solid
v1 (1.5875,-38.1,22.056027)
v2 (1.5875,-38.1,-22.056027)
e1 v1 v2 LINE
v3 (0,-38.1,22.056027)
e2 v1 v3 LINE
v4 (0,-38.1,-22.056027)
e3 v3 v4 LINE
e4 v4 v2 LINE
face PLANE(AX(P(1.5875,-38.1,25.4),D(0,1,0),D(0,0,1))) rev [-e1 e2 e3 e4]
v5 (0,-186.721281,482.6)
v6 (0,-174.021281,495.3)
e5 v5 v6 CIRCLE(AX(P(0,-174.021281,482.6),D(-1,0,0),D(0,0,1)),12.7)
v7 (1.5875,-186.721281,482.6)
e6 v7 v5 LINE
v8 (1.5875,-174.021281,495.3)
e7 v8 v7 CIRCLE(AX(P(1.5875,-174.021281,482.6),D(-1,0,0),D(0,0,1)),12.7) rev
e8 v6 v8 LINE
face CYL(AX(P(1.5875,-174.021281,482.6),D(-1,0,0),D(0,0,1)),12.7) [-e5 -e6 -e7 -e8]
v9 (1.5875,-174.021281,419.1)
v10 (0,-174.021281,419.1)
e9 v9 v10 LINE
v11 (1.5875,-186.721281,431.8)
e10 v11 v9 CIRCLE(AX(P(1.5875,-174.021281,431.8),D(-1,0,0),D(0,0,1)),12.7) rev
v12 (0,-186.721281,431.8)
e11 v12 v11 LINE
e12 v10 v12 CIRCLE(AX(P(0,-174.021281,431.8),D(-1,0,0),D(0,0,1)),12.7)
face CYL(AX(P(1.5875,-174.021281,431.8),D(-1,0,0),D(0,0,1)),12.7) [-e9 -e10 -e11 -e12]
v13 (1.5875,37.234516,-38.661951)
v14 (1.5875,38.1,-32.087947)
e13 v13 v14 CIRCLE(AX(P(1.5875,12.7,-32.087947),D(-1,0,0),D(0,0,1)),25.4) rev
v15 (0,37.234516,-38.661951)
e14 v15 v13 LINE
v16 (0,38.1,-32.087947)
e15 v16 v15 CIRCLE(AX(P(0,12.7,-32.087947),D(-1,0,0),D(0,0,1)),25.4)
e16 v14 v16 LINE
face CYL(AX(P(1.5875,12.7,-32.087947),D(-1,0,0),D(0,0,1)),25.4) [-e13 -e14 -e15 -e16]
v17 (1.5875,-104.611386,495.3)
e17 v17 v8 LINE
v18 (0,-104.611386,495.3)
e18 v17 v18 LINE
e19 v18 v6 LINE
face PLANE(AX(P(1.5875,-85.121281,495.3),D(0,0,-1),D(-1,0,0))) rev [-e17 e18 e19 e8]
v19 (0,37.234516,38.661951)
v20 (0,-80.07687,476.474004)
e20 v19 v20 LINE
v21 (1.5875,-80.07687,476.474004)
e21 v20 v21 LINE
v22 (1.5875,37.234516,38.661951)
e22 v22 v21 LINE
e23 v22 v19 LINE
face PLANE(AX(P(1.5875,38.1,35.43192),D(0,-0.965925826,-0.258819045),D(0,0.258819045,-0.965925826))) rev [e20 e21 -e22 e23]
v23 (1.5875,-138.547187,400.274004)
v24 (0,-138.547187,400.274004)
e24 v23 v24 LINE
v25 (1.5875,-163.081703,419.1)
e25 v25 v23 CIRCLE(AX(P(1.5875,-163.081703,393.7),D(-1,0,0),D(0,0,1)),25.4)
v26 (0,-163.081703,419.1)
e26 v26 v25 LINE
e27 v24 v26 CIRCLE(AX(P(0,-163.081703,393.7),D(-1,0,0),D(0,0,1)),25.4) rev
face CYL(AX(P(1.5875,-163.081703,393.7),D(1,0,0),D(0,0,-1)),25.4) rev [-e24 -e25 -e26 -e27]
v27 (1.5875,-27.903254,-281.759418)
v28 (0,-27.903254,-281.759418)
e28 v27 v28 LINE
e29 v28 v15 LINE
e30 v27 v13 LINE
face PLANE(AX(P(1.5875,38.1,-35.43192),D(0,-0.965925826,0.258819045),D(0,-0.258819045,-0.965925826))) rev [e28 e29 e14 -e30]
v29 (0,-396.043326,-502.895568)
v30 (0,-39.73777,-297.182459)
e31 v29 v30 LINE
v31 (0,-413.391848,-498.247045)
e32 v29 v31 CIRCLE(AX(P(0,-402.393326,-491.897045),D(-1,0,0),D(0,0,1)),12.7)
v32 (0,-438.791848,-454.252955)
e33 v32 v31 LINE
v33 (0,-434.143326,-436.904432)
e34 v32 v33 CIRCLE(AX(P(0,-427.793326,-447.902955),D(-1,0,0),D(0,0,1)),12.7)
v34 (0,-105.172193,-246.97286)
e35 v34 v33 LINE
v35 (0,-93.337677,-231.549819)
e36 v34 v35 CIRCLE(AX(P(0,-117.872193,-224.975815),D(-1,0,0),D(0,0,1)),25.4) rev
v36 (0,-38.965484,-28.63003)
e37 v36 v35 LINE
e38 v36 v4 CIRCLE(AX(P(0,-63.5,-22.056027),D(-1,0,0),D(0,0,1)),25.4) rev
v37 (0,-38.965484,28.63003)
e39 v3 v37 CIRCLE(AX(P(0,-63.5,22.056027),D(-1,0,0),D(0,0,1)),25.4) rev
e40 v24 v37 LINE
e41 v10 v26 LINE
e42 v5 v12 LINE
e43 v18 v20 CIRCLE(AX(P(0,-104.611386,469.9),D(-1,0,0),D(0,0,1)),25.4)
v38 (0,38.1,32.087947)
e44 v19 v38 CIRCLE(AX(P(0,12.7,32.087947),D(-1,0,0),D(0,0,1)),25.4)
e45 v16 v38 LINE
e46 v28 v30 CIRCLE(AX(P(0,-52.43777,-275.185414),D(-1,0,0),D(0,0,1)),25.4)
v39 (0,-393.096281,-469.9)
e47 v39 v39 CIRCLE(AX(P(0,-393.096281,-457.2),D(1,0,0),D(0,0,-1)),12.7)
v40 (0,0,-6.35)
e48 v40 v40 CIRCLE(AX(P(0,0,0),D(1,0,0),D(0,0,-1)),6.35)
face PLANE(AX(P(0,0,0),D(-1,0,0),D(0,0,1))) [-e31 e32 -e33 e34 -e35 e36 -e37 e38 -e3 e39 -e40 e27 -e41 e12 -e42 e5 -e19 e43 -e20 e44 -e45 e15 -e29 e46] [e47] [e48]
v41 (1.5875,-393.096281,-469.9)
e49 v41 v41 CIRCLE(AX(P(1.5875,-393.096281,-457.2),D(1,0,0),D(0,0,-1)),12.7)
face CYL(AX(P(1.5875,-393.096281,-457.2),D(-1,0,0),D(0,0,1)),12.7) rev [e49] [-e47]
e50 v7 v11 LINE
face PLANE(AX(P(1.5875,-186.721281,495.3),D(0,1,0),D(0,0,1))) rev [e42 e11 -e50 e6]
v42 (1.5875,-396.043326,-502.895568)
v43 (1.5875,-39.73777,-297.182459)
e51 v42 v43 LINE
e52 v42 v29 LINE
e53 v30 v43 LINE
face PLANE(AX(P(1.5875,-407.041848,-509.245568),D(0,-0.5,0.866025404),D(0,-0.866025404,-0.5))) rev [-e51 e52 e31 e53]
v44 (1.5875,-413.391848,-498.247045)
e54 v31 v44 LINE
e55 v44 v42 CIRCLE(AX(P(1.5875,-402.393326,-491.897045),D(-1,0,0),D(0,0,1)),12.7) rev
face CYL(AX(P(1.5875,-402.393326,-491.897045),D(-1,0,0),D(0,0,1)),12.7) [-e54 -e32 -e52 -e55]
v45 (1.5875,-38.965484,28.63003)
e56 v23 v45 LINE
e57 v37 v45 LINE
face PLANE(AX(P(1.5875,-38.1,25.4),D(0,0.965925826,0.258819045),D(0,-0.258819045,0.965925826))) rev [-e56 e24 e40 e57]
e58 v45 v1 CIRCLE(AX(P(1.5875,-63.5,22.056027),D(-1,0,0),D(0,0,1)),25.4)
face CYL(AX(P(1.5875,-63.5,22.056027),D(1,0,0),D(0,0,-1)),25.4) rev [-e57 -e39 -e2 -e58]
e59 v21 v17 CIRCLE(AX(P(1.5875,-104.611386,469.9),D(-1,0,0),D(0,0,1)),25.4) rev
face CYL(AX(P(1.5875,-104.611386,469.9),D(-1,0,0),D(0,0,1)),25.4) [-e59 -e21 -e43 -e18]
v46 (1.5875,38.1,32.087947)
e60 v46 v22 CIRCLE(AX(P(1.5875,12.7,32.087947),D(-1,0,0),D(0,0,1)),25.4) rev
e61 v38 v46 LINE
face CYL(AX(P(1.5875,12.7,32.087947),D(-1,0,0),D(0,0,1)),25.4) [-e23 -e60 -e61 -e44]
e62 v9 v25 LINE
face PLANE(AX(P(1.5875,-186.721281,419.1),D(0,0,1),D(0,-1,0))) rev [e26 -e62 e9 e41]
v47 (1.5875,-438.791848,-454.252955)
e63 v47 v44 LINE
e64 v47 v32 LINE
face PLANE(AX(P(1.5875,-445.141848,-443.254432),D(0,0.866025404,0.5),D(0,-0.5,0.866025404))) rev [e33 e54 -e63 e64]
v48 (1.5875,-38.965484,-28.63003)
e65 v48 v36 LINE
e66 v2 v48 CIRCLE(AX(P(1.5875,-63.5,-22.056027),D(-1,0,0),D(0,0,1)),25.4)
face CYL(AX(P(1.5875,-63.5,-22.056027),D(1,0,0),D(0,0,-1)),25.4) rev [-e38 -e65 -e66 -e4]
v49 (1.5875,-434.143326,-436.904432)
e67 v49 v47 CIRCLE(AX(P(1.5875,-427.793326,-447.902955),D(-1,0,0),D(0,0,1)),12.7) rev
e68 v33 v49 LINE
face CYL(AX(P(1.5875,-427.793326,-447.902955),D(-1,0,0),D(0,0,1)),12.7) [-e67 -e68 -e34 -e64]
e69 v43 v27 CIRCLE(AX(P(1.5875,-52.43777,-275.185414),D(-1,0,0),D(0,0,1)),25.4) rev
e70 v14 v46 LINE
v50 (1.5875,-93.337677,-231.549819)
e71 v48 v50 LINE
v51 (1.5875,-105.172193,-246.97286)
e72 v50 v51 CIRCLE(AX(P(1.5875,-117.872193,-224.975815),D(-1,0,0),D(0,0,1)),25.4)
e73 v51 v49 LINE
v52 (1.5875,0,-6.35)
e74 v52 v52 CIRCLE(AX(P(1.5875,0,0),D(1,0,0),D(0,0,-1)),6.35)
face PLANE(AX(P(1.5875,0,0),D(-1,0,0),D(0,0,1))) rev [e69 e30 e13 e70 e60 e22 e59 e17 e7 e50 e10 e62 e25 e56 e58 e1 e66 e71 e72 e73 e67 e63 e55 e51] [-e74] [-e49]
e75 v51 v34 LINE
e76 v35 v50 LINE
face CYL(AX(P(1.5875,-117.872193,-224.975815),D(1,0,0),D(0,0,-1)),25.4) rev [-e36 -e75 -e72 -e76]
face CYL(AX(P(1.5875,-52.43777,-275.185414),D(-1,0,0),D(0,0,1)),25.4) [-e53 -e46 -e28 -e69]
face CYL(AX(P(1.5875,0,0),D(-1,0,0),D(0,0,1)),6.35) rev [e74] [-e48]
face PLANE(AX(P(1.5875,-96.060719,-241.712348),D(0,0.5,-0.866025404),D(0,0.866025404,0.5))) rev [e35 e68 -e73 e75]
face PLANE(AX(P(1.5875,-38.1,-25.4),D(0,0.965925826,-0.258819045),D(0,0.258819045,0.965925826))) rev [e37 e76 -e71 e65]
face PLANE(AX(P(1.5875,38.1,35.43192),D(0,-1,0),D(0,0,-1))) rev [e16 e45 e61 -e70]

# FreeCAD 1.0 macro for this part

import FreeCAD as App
import Part
import Sketcher
Q = App.Units.Quantity


def edges_at(feature, points):
    """Names of the edges that pass closest to the given points."""
    edges = feature.Shape.Edges
    near = lambda p: min(range(len(edges)), key=lambda i: edges[i].distToShape(Part.Vertex(*p))[0])
    return sorted({f"Edge{near(p) + 1}" for p in points})


def add_polygon(sketch, points):
    """Adds a closed chain of lines whose ends are joined by coincident constraints."""
    first, n = sketch.GeometryCount, len(points)
    for a, b in zip(points, points[1:] + points[:1]):
        sketch.addGeometry(Part.LineSegment(App.Vector(*a, 0), App.Vector(*b, 0)), False)
    for i in range(n):
        sketch.addConstraint(Sketcher.Constraint("Coincident", first + i, 2, first + (i + 1) % n, 1))

doc = App.newDocument("Part")
params = doc.addObject("Spreadsheet::Sheet", "Params")
for row, (alias, value) in enumerate([
    ("sketch1_diameter", "1 in"),
    ("sketch1_diameter2", "0.5 in"),
    ("sketch1_width", "4 in"),
    ("sketch1_height", "3 in"),
    ("sketch1_height2", "2 in"),
    ("pad1_length", "0.0625 in"),
    ("fillet_radius", "1 in"),
    ("fillet2_radius", "1 in"),
    ("fillet3_radius", "1 in"),
    ("fillet4_radius", "1 in"),
    ("fillet5_radius", "0.5 in"),
], start=1):
    params.set(f"A{row}", alias)
    params.set(f"B{row}", "=" + value)
    params.setAlias(f"B{row}", alias)

body = doc.addObject("PartDesign::Body", "Body")

# Sketch on YZ plane
sketch1 = body.newObject("Sketcher::SketchObject", "Sketch")
sketch1.AttachmentSupport = (doc.getObject("YZ_Plane"), [""])
sketch1.MapMode = "FlatFace"
add_polygon(sketch1, [(38.1, -35.43192), (38.1, 35.43192), (-85.121281, 495.3), (-186.721281, 495.3), (-186.721281, 419.1), (-143.591597, 419.1), (-38.1, 25.4), (-38.1, -25.4), (-96.060719, -241.712348), (-445.141848, -443.254432), (-407.041848, -509.245568), (-30.626296, -291.921947)])  # lines 0-11
sketch1.addGeometry(Part.Circle(App.Vector(-393.096281, -457.2, 0), App.Vector(0, 0, 1), 12.7), False)  # 12
sketch1.addGeometry(Part.Circle(App.Vector(0, 0, 0), App.Vector(0, 0, 1), 6.35), False)  # 13
sketch1.addConstraint([
    Sketcher.Constraint("Vertical", 0),
    Sketcher.Constraint("Horizontal", 2),
    Sketcher.Constraint("Vertical", 3),
    Sketcher.Constraint("Horizontal", 4),
    Sketcher.Constraint("Vertical", 6),
    Sketcher.Constraint("Coincident", 13, 3, -1, 1),
    Sketcher.Constraint("Parallel", 1, 5),
    Sketcher.Constraint("Perpendicular", 8, 9),
    Sketcher.Constraint("Perpendicular", 9, 10),
    Sketcher.Constraint("Parallel", 7, 11),
    Sketcher.Constraint("Diameter", 12, Q("1 in")),
    Sketcher.Constraint("Diameter", 13, Q("0.5 in")),
    Sketcher.Constraint("DistanceX", 2, 2, 2, 1, Q("4 in")),
    Sketcher.Constraint("DistanceY", 3, 2, 3, 1, Q("3 in")),
    Sketcher.Constraint("DistanceY", 6, 2, 6, 1, Q("2 in")),
    Sketcher.Constraint("Distance", 9, Q("3 in")),
    Sketcher.Constraint("DistanceY", 12, 3, -1, 1, Q("18 in")),
    Sketcher.Constraint("DistanceY", -1, 1, 5, 2, Q("1 in")),
    Sketcher.Constraint("Angle", 1, Q("105 deg")),
    Sketcher.Constraint("Angle", 7, Q("-105 deg")),
    Sketcher.Constraint("Angle", 8, Q("-150 deg")),
    Sketcher.Constraint("DistanceX", 5, 2, 0, 2, Q("3 in")),
    Sketcher.Constraint("DistanceX", -1, 1, 0, 2, Q("1.5 in")),
    Sketcher.Constraint("DistanceY", -1, 1, 1, 2, Q("19.5 in")),
    Sketcher.Constraint("DistanceX", 12, 3, 1, 2, Q("12.125 in")),
    Sketcher.Constraint("DistanceY", 0, 1, 0, 2, Q("70.863841 mm")),
    Sketcher.Constraint("DistanceY", 10, 2, 7, 2, Q("50.209599 mm")),
    Sketcher.Constraint("Distance", 7, Q("223.943021 mm")),
    Sketcher.Constraint("Distance", 8, Q("403.084168 mm")),
])
sketch1.setExpression("Constraints[22]", "Params.sketch1_diameter")
sketch1.setExpression("Constraints[23]", "Params.sketch1_diameter2")
sketch1.setExpression("Constraints[24]", "Params.sketch1_width")
sketch1.setExpression("Constraints[25]", "Params.sketch1_height")
sketch1.setExpression("Constraints[26]", "Params.sketch1_height2")
pad1 = body.newObject("PartDesign::Pad", "Pad")
pad1.Profile = sketch1
pad1.setExpression("Length", "Params.pad1_length")
doc.recompute()

fillet = body.newObject("PartDesign::Fillet", "Fillet")
fillet.Base = (pad1, edges_at(pad1, [(0.794, -85.121, 495.3)]))
fillet.setExpression("Radius", "Params.fillet_radius")
doc.recompute()

fillet2 = body.newObject("PartDesign::Fillet", "Fillet001")
fillet2.Base = (fillet, edges_at(fillet, [(0.794, -143.592, 419.1)]))
fillet2.setExpression("Radius", "Params.fillet2_radius")
doc.recompute()

fillet3 = body.newObject("PartDesign::Fillet", "Fillet002")
fillet3.Base = (fillet2, edges_at(fillet2, [(0.794, -96.061, -241.712), (0.794, -38.1, -25.4), (0.794, -38.1, 25.4)]))
fillet3.setExpression("Radius", "Params.fillet3_radius")
doc.recompute()

fillet4 = body.newObject("PartDesign::Fillet", "Fillet003")
fillet4.Base = (fillet3, edges_at(fillet3, [(0.794, 38.1, 35.432), (0.794, 38.1, -35.432), (0.794, -30.626, -291.922)]))
fillet4.setExpression("Radius", "Params.fillet4_radius")
doc.recompute()

fillet5 = body.newObject("PartDesign::Fillet", "Fillet004")
fillet5.Base = (fillet4, edges_at(fillet4, [
    (0.794, -186.721, 419.1),
    (0.794, -186.721, 495.3),
    (0.794, -407.042, -509.246),
    (0.794, -445.142, -443.254),
]))
fillet5.setExpression("Radius", "Params.fillet5_radius")

doc.recompute()
